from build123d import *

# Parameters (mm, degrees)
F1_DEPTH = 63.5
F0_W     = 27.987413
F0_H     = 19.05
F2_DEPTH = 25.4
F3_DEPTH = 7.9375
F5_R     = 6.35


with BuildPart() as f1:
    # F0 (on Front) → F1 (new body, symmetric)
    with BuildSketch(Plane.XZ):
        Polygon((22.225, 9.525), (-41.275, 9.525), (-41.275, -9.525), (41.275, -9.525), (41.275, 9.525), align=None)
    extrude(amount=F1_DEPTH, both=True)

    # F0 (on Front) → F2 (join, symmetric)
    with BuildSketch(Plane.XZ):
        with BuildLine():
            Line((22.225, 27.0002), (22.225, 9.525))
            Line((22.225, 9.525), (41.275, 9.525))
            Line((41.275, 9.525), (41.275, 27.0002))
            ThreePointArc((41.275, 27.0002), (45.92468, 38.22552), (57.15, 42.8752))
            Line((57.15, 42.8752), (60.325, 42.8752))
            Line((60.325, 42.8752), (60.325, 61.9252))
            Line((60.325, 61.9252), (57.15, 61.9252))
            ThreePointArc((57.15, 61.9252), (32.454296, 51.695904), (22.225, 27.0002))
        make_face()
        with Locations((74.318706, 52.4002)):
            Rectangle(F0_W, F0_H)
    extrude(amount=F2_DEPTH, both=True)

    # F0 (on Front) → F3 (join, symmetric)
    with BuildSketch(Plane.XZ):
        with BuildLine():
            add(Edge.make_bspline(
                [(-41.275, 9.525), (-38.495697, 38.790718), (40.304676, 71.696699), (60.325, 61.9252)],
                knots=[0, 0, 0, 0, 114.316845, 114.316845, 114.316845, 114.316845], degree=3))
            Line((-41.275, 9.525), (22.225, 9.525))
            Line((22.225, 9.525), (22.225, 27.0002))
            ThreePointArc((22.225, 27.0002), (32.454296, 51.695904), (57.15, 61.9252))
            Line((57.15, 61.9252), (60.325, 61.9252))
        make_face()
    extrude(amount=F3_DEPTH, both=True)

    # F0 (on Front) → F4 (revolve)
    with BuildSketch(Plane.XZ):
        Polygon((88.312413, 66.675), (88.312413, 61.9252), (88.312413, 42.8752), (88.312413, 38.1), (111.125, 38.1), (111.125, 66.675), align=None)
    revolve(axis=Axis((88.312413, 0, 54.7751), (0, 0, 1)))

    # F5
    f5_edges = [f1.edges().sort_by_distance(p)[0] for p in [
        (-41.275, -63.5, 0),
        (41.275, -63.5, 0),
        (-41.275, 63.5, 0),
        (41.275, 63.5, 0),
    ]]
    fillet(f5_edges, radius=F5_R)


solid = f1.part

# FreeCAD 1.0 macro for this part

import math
import FreeCAD as App
import Part
import Sketcher
from FreeCAD import Vector
Q = App.Units.Quantity


def edges_at(feature, points):
    """Names of the edges that pass closest to the given points."""
    edges = feature.Shape.Edges
    near = lambda p: min(range(len(edges)), key=lambda i: edges[i].distToShape(Part.Vertex(*p))[0])
    return sorted({f"Edge{near(p) + 1}" for p in points})


def add_polygon(sketch, points):
    """Adds a closed chain of lines whose ends are joined by coincident constraints."""
    first, n = sketch.GeometryCount, len(points)
    for a, b in zip(points, points[1:] + points[:1]):
        sketch.addGeometry(Part.LineSegment(App.Vector(*a, 0), App.Vector(*b, 0)), False)
    for i in range(n):
        sketch.addConstraint(Sketcher.Constraint("Coincident", first + i, 2, first + (i + 1) % n, 1))

doc = App.newDocument("Part")
body = doc.addObject("PartDesign::Body", "Body")

sketch1 = doc.addObject("Sketcher::SketchObject", "Sketch")
body.addObject(sketch1)
sketch1.AttachmentSupport = (doc.XZ_Plane, [""])
sketch1.MapMode = "FlatFace"
add_polygon(sketch1, [(-41, 10), (-41, -10), (41, -10), (41, 10)])
sketch1.addConstraint([
    Sketcher.Constraint("Vertical", 0),
    Sketcher.Constraint("Horizontal", 1),
    Sketcher.Constraint("Vertical", 2),
    Sketcher.Constraint("Horizontal", 3),
    Sketcher.Constraint("Symmetric", 0, 2, 2, 2, -1, 1),
    Sketcher.Constraint("DistanceX", 1, 1, 1, 2, Q("3.25 in")),
    Sketcher.Constraint("DistanceY", 0, 2, 0, 1, Q("0.75 in")),
])
pad1 = doc.addObject("PartDesign::Pad", "Pad")
body.addObject(pad1)
pad1.Profile = sketch1
pad1.Length = Q("5 in")
pad1.Midplane = True

sketch2 = doc.addObject("Sketcher::SketchObject", "Sketch001")
body.addObject(sketch2)
sketch2.AttachmentSupport = (doc.XZ_Plane, [""])
sketch2.MapMode = "FlatFace"
sketch2.addGeometry([
    Part.ArcOfCircle(Part.Circle(Vector(57, 27, 0), Vector(0, 0, 1), 35), math.radians(90), math.radians(180)),
    Part.LineSegment(Vector(22, 27, 0), Vector(22, 10, 0)),
    Part.LineSegment(Vector(22, 10, 0), Vector(41, 10, 0)),
    Part.LineSegment(Vector(41, 10, 0), Vector(41, 27, 0)),
    Part.ArcOfCircle(Part.Circle(Vector(57, 27, 0), Vector(0, 0, 1), 16), math.radians(90), math.radians(180)),
    Part.LineSegment(Vector(57, 43, 0), Vector(88, 43, 0)),
    Part.LineSegment(Vector(88, 43, 0), Vector(88, 62, 0)),
    Part.LineSegment(Vector(88, 62, 0), Vector(57, 62, 0)),
], False)
sketch2.addConstraint([
    Sketcher.Constraint("Tangent", 0, 2, 1, 1),
    Sketcher.Constraint("Coincident", 1, 2, 2, 1),
    Sketcher.Constraint("Coincident", 2, 2, 3, 1),
    Sketcher.Constraint("Tangent", 3, 2, 4, 2),
    Sketcher.Constraint("Tangent", 4, 1, 5, 1),
    Sketcher.Constraint("Coincident", 5, 2, 6, 1),
    Sketcher.Constraint("Coincident", 6, 2, 7, 1),
    Sketcher.Constraint("Tangent", 7, 2, 0, 1),
    Sketcher.Constraint("Vertical", 1),
    Sketcher.Constraint("Horizontal", 2),
    Sketcher.Constraint("Vertical", 3),
    Sketcher.Constraint("Horizontal", 5),
    Sketcher.Constraint("Vertical", 6),
    Sketcher.Constraint("Horizontal", 7),
    Sketcher.Constraint("Coincident", 4, 3, 0, 3),
    Sketcher.Constraint("Radius", 0, Q("1.375 in")),
    Sketcher.Constraint("Radius", 4, Q("0.625 in")),
    Sketcher.Constraint("DistanceY", 1, 2, 1, 1, Q("0.688 in")),
    Sketcher.Constraint("DistanceX", -1, 1, 0, 3, Q("2.25 in")),
    Sketcher.Constraint("DistanceY", -1, 1, 0, 3, Q("1.063 in")),
    Sketcher.Constraint("DistanceX", 5, 1, 5, 2, 31.162412),
])
pad2 = doc.addObject("PartDesign::Pad", "Pad001")
body.addObject(pad2)
pad2.Profile = sketch2
pad2.Length = Q("2 in")
pad2.Midplane = True

sketch3 = doc.addObject("Sketcher::SketchObject", "Sketch002")
body.addObject(sketch3)
sketch3.AttachmentSupport = (doc.XZ_Plane, [""])
sketch3.MapMode = "FlatFace"
sketch3.addGeometry([
    Part.BSplineCurve([Vector(-41.275, 9.525, 0), Vector(-38.495697, 38.790718, 0), Vector(40.304676, 71.696699, 0), Vector(60.325, 61.9252, 0)], [4, 4], [0, 114.316845], False, 3, [1, 1, 1, 1], False),
    Part.LineSegment(Vector(-41.275, 9.525, 0), Vector(22.225, 9.525, 0)),
    Part.LineSegment(Vector(22.225, 9.525, 0), Vector(22.225, 27.0002, 0)),
    Part.ArcOfCircle(Part.Circle(Vector(57.150001, 27.000199, 0), Vector(0, 0, 1), 34.925001), math.radians(90.000002), math.radians(179.999998)),
    Part.LineSegment(Vector(57.15, 61.9252, 0), Vector(60.325, 61.9252, 0)),
], False)
sketch3.addConstraint([
    Sketcher.Constraint("Block", 0),
    Sketcher.Constraint("Coincident", 0, 1, 1, 1),
    Sketcher.Constraint("Coincident", 1, 2, 2, 1),
    Sketcher.Constraint("Tangent", 2, 2, 3, 2),
    Sketcher.Constraint("Tangent", 3, 1, 4, 1),
    Sketcher.Constraint("Coincident", 4, 2, 0, 2),
    Sketcher.Constraint("Horizontal", 1),
    Sketcher.Constraint("Vertical", 2),
    Sketcher.Constraint("Horizontal", 4),
    Sketcher.Constraint("DistanceX", 1, 1, 1, 2, Q("2.5 in")),
    Sketcher.Constraint("Radius", 3, Q("1.375 in")),
])
pad3 = doc.addObject("PartDesign::Pad", "Pad002")
body.addObject(pad3)
pad3.Profile = sketch3
pad3.Length = Q("0.625 in")
pad3.Midplane = True

sketch4 = doc.addObject("Sketcher::SketchObject", "Sketch003")
body.addObject(sketch4)
sketch4.AttachmentSupport = (doc.XZ_Plane, [""])
sketch4.MapMode = "FlatFace"
add_polygon(sketch4, [(88, 67), (88, 38), (111, 38), (111, 67)])
sketch4.addGeometry(Part.LineSegment(Vector(88, 38, 0), Vector(88, 67, 0)), True)
sketch4.addConstraint([
    Sketcher.Constraint("Vertical", 0),
    Sketcher.Constraint("Horizontal", 1),
    Sketcher.Constraint("Vertical", 2),
    Sketcher.Constraint("Horizontal", 3),
    Sketcher.Constraint("Vertical", 4),
    Sketcher.Constraint("Coincident", 4, 1, 0, 2),
    Sketcher.Constraint("Horizontal", 2, 2, 4, 2),
    Sketcher.Constraint("DistanceY", -1, 1, 0, 2, Q("1.5 in")),
    Sketcher.Constraint("DistanceY", 0, 2, 0, 1, Q("1.125 in")),
    Sketcher.Constraint("DistanceX", -1, 1, 1, 2, Q("4.375 in")),
    Sketcher.Constraint("DistanceX", 1, 1, 1, 2, 22.812587),
])
revolution = doc.addObject("PartDesign::Revolution", "Revolution")
body.addObject(revolution)
revolution.Profile = sketch4
revolution.ReferenceAxis = (sketch4, ["Axis0"])
revolution.Angle = 360
doc.recompute()

fillet = doc.addObject("PartDesign::Fillet", "Fillet")
body.addObject(fillet)
fillet.Base = (revolution, edges_at(revolution, [
    (-41.275, -63.5, 0),
    (41.275, -63.5, 0),
    (-41.275, 63.5, 0),
    (41.275, 63.5, 0),
]))
fillet.Radius = Q("0.25 in")

doc.recompute()
